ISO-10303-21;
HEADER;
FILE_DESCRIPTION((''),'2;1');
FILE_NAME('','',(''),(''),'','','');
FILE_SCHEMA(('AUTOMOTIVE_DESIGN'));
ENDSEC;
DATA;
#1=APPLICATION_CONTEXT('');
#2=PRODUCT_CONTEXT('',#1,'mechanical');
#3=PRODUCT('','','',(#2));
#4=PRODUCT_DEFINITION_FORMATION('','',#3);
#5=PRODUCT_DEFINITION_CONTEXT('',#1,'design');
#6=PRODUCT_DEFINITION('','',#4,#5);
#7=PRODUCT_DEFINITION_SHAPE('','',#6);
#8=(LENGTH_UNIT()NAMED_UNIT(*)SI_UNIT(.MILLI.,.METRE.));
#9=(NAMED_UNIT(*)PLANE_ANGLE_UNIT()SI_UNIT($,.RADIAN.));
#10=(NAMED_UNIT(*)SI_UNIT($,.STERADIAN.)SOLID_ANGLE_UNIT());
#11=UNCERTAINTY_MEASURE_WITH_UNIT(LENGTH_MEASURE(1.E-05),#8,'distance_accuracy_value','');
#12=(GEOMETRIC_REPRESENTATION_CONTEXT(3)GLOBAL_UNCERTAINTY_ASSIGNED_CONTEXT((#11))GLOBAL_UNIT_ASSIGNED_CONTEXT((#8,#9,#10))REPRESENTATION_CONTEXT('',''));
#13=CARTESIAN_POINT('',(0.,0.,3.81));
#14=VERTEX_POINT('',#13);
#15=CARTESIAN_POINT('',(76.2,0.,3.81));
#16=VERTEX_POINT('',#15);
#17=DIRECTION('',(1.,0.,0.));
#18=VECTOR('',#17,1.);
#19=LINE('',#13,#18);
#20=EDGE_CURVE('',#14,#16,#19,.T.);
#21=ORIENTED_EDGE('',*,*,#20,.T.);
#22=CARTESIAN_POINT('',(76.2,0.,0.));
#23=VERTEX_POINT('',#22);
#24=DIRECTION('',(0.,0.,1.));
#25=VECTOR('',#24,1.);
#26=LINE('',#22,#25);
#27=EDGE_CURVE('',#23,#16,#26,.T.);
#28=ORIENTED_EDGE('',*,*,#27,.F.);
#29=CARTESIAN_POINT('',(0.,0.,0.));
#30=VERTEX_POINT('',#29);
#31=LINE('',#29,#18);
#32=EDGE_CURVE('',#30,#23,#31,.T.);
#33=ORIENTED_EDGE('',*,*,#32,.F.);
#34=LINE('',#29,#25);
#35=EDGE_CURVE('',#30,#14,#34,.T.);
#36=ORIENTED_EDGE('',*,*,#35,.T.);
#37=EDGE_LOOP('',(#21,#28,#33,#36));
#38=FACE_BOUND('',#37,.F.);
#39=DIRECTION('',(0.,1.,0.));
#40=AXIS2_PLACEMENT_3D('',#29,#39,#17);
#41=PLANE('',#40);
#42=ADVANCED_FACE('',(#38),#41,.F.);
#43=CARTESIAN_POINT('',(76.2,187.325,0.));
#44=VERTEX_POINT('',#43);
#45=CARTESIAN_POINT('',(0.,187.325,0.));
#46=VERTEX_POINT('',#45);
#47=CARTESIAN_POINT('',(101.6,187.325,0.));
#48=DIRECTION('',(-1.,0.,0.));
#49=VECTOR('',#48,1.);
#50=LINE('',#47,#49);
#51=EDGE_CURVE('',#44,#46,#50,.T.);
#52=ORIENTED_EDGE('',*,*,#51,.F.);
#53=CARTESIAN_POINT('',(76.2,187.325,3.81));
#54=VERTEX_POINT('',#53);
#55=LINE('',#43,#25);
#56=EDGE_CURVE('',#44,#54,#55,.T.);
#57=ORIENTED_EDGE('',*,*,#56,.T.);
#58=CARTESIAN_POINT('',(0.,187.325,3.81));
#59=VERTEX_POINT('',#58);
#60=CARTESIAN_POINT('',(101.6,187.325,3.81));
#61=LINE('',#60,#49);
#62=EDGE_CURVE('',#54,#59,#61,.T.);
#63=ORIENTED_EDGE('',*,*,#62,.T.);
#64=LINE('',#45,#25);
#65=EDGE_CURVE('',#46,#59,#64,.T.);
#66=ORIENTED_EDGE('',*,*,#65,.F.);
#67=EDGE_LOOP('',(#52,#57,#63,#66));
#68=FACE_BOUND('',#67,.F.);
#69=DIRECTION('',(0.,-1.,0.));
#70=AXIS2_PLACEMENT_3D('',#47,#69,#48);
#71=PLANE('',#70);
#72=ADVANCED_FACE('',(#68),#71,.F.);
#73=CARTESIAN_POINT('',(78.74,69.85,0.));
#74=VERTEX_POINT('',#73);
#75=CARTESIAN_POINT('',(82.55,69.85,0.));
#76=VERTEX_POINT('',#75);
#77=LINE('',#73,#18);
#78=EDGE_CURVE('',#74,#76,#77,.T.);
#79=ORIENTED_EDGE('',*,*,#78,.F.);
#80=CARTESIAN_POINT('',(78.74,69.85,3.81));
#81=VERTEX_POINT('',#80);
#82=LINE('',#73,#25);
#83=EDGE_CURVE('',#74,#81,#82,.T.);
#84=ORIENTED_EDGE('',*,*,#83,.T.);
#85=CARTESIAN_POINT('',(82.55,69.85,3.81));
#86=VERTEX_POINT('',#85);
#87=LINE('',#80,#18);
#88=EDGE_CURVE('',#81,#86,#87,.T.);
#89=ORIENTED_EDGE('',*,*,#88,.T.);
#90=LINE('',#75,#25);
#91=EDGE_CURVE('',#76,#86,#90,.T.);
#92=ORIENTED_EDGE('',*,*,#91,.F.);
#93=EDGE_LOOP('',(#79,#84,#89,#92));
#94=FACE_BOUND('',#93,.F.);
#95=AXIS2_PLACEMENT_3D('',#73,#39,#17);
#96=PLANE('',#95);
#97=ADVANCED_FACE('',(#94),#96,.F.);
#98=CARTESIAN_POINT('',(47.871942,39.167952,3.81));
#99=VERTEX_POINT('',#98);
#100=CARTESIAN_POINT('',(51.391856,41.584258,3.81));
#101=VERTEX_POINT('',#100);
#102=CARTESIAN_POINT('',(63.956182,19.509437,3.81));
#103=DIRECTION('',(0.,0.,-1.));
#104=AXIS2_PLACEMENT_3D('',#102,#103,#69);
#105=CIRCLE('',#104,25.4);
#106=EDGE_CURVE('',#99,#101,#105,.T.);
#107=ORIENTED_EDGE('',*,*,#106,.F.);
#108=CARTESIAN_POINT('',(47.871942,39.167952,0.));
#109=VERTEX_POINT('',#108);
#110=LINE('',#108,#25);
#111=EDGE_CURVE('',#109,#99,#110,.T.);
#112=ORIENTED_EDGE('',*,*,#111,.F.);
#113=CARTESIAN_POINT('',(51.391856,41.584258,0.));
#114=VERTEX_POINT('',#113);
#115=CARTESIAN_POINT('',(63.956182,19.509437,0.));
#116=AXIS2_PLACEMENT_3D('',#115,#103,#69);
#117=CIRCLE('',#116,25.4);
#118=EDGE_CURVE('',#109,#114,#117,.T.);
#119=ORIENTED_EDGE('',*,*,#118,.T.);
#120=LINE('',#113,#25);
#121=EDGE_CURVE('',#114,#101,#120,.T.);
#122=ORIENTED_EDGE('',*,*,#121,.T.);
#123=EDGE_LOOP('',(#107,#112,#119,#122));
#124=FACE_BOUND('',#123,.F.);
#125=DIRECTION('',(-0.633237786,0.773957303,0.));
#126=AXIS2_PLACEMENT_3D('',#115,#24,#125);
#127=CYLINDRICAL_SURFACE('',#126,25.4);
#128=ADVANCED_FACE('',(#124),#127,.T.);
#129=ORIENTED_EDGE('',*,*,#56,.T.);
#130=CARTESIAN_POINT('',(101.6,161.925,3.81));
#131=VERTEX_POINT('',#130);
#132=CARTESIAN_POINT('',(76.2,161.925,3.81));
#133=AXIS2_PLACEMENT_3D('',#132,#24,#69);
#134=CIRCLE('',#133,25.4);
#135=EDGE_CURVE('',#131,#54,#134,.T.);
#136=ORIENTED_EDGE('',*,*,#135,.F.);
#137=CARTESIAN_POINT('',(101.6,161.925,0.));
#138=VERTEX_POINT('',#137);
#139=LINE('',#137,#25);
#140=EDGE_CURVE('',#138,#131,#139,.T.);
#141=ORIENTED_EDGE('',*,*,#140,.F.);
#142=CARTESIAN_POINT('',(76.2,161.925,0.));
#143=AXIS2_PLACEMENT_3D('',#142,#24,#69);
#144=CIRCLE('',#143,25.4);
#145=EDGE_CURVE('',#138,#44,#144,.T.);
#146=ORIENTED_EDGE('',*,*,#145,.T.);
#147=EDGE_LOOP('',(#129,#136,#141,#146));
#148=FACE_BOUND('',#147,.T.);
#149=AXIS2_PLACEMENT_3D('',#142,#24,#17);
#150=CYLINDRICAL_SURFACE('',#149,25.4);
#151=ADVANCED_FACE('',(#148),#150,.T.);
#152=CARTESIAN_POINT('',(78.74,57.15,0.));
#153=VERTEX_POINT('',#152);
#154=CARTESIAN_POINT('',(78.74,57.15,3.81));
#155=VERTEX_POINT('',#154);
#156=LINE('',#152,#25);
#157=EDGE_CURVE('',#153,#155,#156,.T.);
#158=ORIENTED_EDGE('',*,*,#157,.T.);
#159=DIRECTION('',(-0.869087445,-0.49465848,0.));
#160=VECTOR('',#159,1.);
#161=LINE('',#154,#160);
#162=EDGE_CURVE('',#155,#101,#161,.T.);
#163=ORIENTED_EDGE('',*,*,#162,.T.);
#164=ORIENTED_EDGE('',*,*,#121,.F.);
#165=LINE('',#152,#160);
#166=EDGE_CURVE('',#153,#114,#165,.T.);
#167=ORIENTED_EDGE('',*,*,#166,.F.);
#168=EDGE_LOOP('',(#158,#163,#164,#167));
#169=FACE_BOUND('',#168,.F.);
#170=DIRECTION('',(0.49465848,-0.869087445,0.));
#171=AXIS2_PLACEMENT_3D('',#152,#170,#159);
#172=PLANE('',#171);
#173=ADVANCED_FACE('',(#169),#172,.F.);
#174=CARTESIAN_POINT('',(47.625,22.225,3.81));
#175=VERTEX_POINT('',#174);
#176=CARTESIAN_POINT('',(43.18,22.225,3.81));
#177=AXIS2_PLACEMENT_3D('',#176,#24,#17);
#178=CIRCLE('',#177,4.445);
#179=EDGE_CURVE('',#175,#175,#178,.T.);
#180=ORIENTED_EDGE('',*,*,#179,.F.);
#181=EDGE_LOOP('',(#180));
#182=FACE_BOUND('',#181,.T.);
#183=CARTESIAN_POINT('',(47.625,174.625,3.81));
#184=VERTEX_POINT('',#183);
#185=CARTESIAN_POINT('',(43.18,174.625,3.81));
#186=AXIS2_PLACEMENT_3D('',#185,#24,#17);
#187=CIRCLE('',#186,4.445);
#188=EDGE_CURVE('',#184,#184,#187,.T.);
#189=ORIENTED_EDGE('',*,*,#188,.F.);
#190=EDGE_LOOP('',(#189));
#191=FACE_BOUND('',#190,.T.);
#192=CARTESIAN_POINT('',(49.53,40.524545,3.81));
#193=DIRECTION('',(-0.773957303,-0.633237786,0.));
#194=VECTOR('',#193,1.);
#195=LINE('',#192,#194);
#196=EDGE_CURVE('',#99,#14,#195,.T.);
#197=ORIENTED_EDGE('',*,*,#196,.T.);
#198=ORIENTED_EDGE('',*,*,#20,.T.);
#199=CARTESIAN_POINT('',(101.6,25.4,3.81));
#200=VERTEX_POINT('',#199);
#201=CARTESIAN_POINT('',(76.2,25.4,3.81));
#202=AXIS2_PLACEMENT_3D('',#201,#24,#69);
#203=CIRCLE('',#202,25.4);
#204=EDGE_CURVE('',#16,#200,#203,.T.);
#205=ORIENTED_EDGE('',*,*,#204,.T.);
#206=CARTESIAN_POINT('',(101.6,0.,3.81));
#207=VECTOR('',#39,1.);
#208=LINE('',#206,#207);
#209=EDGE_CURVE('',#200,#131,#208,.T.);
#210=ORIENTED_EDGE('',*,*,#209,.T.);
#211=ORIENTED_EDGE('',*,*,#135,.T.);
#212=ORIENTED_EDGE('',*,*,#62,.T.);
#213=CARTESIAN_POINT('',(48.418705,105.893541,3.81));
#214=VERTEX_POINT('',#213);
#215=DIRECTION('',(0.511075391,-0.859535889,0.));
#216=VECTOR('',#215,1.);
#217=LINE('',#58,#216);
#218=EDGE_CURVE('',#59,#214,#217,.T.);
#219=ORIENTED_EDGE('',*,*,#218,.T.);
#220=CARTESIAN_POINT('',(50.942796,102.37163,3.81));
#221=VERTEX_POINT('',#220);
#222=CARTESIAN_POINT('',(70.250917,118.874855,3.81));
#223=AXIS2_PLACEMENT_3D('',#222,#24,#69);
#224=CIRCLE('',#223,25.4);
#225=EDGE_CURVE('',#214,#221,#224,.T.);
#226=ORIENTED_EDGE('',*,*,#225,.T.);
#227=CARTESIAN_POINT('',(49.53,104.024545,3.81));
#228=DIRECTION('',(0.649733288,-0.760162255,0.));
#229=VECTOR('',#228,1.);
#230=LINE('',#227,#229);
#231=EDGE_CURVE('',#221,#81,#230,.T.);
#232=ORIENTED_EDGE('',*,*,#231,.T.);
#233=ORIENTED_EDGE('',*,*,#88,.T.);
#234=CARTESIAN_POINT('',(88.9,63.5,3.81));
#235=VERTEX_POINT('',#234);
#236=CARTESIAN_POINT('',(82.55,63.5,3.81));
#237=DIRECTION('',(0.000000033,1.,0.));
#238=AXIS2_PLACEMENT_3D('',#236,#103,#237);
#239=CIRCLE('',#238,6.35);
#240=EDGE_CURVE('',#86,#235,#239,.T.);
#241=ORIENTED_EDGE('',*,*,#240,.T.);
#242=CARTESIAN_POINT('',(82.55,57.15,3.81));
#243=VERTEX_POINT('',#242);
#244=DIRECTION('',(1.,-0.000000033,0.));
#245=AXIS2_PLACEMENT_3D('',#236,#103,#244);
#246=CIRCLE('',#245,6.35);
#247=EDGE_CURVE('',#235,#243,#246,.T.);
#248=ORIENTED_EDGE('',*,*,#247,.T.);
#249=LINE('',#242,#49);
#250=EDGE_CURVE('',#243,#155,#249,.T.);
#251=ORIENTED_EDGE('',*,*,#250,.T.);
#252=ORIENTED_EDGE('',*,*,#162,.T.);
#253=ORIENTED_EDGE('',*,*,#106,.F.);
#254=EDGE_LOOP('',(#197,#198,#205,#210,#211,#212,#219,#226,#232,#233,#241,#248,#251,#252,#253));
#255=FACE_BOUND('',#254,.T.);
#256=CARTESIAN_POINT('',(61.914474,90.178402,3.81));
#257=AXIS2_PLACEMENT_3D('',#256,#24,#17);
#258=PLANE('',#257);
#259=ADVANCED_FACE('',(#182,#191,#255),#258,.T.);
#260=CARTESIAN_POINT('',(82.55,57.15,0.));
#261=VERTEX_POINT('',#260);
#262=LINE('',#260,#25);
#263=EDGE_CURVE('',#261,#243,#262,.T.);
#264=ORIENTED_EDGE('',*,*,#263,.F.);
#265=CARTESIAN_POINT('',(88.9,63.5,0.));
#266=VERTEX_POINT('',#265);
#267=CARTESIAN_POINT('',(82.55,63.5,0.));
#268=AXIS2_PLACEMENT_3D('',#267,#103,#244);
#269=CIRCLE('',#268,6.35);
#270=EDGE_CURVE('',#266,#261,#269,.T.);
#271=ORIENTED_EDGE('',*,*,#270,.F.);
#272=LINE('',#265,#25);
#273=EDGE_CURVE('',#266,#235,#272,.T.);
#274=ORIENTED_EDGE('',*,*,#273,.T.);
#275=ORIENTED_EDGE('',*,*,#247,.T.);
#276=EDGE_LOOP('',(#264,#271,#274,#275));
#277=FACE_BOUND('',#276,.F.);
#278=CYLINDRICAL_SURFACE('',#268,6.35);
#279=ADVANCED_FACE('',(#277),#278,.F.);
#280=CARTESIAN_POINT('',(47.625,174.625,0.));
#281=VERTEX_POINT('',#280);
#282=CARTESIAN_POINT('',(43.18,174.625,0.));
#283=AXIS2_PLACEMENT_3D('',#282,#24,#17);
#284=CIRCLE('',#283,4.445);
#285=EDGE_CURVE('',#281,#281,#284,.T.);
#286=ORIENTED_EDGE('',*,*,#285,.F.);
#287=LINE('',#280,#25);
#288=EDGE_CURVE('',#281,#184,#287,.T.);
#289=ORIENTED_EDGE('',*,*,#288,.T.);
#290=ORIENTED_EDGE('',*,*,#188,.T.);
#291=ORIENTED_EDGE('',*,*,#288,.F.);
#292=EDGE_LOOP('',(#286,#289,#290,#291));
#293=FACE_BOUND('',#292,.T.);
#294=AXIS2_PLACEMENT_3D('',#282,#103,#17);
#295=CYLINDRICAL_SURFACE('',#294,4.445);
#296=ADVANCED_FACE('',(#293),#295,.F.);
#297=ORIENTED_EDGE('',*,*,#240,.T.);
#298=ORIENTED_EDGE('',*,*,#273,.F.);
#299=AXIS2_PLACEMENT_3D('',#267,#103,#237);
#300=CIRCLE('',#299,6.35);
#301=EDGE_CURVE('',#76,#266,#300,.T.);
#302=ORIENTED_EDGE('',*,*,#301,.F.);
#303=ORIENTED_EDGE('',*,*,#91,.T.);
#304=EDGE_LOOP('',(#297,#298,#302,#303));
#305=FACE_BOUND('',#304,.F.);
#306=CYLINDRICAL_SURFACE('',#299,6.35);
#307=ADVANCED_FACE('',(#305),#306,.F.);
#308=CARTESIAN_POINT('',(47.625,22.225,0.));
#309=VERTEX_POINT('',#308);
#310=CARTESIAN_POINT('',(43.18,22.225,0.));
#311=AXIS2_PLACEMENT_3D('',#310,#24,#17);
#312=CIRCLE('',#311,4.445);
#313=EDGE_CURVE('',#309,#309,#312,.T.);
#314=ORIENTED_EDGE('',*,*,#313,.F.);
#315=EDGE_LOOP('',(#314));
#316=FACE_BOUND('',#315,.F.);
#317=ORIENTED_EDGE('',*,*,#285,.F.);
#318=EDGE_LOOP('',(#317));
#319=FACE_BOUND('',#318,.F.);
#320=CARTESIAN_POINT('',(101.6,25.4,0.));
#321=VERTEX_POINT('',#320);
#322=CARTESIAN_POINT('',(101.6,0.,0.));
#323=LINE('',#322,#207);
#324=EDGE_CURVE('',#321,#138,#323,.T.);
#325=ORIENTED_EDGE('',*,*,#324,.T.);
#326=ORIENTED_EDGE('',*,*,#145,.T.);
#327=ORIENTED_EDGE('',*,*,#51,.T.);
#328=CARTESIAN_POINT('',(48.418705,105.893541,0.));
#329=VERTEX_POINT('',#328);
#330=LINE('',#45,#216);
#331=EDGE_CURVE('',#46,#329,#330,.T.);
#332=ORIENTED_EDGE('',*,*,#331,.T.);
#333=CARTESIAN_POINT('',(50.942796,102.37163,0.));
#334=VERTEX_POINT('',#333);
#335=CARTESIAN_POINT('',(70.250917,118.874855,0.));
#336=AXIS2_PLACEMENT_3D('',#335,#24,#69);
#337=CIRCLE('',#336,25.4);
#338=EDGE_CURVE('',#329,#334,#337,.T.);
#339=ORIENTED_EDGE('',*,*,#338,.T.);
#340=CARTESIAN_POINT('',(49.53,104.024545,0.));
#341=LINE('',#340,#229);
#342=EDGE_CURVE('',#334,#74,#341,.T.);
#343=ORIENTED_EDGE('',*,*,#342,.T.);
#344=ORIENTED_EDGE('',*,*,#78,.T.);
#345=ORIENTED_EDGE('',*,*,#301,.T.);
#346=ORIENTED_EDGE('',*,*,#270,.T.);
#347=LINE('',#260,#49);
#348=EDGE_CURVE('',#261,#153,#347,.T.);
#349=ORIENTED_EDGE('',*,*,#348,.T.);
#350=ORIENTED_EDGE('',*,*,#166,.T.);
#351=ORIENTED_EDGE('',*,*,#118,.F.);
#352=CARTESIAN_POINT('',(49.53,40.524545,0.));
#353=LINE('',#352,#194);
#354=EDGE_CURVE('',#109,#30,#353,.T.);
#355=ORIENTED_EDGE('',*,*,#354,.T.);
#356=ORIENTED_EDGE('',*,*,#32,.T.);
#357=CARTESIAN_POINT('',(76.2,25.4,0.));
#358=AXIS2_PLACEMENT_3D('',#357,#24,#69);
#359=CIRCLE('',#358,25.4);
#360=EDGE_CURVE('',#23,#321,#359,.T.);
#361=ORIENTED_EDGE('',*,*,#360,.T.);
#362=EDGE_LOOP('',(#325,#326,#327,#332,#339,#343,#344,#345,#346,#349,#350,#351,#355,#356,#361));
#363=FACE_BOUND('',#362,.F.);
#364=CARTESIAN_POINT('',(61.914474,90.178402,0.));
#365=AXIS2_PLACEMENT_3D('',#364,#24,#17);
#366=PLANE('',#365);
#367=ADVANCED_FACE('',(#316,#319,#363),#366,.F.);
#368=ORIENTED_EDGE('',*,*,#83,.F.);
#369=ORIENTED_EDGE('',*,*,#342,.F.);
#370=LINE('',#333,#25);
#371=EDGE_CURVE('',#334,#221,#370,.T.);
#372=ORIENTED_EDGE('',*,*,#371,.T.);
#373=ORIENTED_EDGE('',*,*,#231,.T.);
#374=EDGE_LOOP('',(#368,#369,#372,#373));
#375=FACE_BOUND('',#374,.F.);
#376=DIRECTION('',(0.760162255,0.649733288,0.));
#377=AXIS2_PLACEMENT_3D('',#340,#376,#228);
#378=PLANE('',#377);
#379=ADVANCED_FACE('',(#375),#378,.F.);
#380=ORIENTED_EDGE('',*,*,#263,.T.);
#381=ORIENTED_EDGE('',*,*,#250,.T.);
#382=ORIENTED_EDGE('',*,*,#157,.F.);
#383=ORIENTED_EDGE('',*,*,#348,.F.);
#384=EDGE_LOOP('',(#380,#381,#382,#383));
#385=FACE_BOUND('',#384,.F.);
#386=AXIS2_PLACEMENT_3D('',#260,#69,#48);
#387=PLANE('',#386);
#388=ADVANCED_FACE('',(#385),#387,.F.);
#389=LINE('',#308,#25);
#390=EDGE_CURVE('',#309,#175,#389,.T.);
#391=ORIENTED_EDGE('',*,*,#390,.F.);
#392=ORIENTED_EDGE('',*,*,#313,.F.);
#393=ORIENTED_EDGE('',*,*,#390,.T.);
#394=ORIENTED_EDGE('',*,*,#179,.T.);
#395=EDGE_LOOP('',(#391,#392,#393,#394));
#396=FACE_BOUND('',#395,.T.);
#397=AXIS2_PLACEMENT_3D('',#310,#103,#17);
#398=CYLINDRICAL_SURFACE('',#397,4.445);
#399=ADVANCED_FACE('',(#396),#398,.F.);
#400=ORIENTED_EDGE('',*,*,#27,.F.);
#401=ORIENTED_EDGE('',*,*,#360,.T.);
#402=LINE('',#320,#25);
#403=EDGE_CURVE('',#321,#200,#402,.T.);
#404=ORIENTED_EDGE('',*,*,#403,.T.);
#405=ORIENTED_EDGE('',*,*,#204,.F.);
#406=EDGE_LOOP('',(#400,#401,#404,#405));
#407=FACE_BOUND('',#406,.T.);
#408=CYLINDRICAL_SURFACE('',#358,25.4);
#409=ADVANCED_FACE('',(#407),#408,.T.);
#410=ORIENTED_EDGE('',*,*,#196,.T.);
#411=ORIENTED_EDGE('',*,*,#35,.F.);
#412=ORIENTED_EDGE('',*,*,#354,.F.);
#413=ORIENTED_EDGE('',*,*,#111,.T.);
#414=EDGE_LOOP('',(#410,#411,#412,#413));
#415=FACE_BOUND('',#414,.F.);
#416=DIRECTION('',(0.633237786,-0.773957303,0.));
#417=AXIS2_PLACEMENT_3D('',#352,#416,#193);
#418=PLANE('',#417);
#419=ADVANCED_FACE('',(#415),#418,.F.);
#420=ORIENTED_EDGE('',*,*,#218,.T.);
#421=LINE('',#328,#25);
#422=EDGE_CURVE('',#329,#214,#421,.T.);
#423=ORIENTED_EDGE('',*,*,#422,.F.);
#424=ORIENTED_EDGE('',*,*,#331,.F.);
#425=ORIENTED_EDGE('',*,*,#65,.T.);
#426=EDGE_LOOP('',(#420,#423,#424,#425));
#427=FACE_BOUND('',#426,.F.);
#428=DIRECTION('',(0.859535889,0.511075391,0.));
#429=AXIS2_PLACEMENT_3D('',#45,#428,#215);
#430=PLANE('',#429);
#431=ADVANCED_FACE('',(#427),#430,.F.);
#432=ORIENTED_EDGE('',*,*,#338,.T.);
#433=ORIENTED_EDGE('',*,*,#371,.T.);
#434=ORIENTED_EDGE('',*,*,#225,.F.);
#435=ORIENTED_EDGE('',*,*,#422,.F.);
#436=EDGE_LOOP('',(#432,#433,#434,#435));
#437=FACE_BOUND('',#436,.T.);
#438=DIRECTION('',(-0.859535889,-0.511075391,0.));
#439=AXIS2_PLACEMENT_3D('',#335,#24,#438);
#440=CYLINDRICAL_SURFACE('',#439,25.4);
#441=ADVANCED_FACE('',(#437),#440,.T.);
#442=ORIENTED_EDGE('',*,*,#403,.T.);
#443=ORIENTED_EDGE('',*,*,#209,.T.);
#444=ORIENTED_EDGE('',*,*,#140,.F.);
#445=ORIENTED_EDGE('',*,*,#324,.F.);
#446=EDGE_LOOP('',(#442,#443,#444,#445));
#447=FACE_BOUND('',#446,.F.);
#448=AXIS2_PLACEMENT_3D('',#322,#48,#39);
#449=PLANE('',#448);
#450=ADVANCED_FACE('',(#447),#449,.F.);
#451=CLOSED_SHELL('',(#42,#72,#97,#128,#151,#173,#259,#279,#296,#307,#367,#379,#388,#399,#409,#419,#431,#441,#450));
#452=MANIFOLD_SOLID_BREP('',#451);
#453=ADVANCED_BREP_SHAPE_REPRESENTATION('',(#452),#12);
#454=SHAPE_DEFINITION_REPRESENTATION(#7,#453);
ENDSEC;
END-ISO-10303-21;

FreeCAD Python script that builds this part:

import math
import FreeCAD as App
import Part
import Sketcher
from FreeCAD import Vector
Q = App.Units.Quantity


def edges_at(feature, points):
    """Names of the edges that pass closest to the given points."""
    edges = feature.Shape.Edges
    near = lambda p: min(range(len(edges)), key=lambda i: edges[i].distToShape(Part.Vertex(*p))[0])
    return sorted({f"Edge{near(p) + 1}" for p in points})

doc = App.newDocument("Part")
params = doc.addObject("Spreadsheet::Sheet", "Params")
for row, (alias, value) in enumerate([
    ("sketch1_diameter", "0.35 in"),
    ("sketch1_width", "4 in"),
    ("sketch1_radius", "0.25 in"),
    ("sketch1_width2", "0.15 in"),
    ("sketch1_height", "7.375 in"),
    ("pad1_length", "0.15 in"),
    ("fillet_radius", "1 in"),
], start=1):
    params.set(f"A{row}", alias)
    params.set(f"B{row}", "=" + value)
    params.setAlias(f"B{row}", alias)

body = doc.addObject("PartDesign::Body", "Body")

# Sketch on XY plane
sketch1 = doc.addObject("Sketcher::SketchObject", "Sketch")
body.addObject(sketch1)
sketch1.AttachmentSupport = (doc.XY_Plane, [""])
sketch1.MapMode = "FlatFace"
sketch1.addGeometry([
    Part.LineSegment(Vector(49.5, 40.5, 0), Vector(0, 0, 0)),  # 0
    Part.LineSegment(Vector(0, 0, 0), Vector(101.6, 0, 0)),  # 1
    Part.LineSegment(Vector(101.6, 0, 0), Vector(101.6, 187.3, 0)),  # 2
    Part.LineSegment(Vector(101.6, 187.3, 0), Vector(0, 187.3, 0)),  # 3
    Part.LineSegment(Vector(0, 187.3, 0), Vector(49.5, 104, 0)),  # 4
    Part.LineSegment(Vector(49.5, 104, 0), Vector(78.7, 69.8, 0)),  # 5
    Part.LineSegment(Vector(78.7, 69.8, 0), Vector(82.5, 69.8, 0)),  # 6
    Part.ArcOfCircle(Part.Circle(Vector(82.5, 63.5, 0), Vector(0, 0, 1), 6.4), math.radians(0), math.radians(90)),  # 7
    Part.ArcOfCircle(Part.Circle(Vector(82.5, 63.5, 0), Vector(0, 0, 1), 6.4), math.radians(-90), math.radians(0)),  # 8
    Part.LineSegment(Vector(82.5, 57.1, 0), Vector(78.7, 57.1, 0)),  # 9
    Part.LineSegment(Vector(78.7, 57.1, 0), Vector(49.5, 40.5, 0)),  # 10
    Part.Circle(Vector(43.2, 22.2, 0), Vector(0, 0, 1), 4.4),  # 11
    Part.Circle(Vector(43.2, 174.6, 0), Vector(0, 0, 1), 4.4),  # 12
], False)
sketch1.addConstraint([
    Sketcher.Constraint("Coincident", 0, 2, 1, 1),
    Sketcher.Constraint("Coincident", 1, 2, 2, 1),
    Sketcher.Constraint("Coincident", 2, 2, 3, 1),
    Sketcher.Constraint("Coincident", 3, 2, 4, 1),
    Sketcher.Constraint("Coincident", 4, 2, 5, 1),
    Sketcher.Constraint("Coincident", 5, 2, 6, 1),
    Sketcher.Constraint("Tangent", 6, 2, 7, 2),
    Sketcher.Constraint("Tangent", 7, 1, 8, 2),
    Sketcher.Constraint("Tangent", 8, 1, 9, 1),
    Sketcher.Constraint("Coincident", 9, 2, 10, 1),
    Sketcher.Constraint("Coincident", 10, 2, 0, 1),
    Sketcher.Constraint("Horizontal", 1),
    Sketcher.Constraint("Vertical", 2),
    Sketcher.Constraint("Horizontal", 3),
    Sketcher.Constraint("Horizontal", 6),
    Sketcher.Constraint("Horizontal", 9),
    Sketcher.Constraint("Coincident", 0, 2, -1, 1),
    Sketcher.Constraint("Equal", 7, 8),
    Sketcher.Constraint("Equal", 11, 12),
    Sketcher.Constraint("PointOnObject", 3, 2, -2),
    Sketcher.Constraint("Horizontal", 8, 3, 7, 1),
    Sketcher.Constraint("Vertical", 11, 3, 12, 3),
    Sketcher.Constraint("Vertical", 5, 2, 9, 2),
    Sketcher.Constraint("Vertical", 4, 2, 10, 2),
    Sketcher.Constraint("Diameter", 11, Q("0.35 in")),
    Sketcher.Constraint("DistanceX", 1, 1, 1, 2, Q("4 in")),
    Sketcher.Constraint("Radius", 7, Q("0.25 in")),
    Sketcher.Constraint("DistanceY", 11, 3, 12, 3, Q("6 in")),
    Sketcher.Constraint("DistanceX", 6, 1, 6, 2, Q("0.15 in")),
    Sketcher.Constraint("DistanceY", -1, 1, 7, 3, Q("2.5 in")),
    Sketcher.Constraint("DistanceX", -1, 1, 11, 3, Q("1.7 in")),
    Sketcher.Constraint("DistanceX", -1, 1, 5, 2, Q("3.1 in")),
    Sketcher.Constraint("DistanceY", 12, 3, 2, 2, Q("0.5 in")),
    Sketcher.Constraint("DistanceX", 4, 2, 8, 3, Q("1.3 in")),
    Sketcher.Constraint("DistanceY", 2, 1, 2, 2, Q("7.375 in")),
    Sketcher.Constraint("Distance", 0, 63.995778),
    Sketcher.Constraint("Distance", 5, 44.956909),
])
sketch1.setExpression("Constraints[24]", "Params.sketch1_diameter")
sketch1.setExpression("Constraints[25]", "Params.sketch1_width")
sketch1.setExpression("Constraints[26]", "Params.sketch1_radius")
sketch1.setExpression("Constraints[28]", "Params.sketch1_width2")
sketch1.setExpression("Constraints[34]", "Params.sketch1_height")
pad1 = doc.addObject("PartDesign::Pad", "Pad")
body.addObject(pad1)
pad1.Profile = sketch1
pad1.setExpression("Length", "Params.pad1_length")
doc.recompute()

fillet = doc.addObject("PartDesign::Fillet", "Fillet")
body.addObject(fillet)
fillet.Base = (pad1, edges_at(pad1, [
    (101.6, 187.325, 1.905),
    (101.6, 0, 1.905),
    (49.53, 104.025, 1.905),
    (49.53, 40.525, 1.905),
]))
fillet.setExpression("Radius", "Params.fillet_radius")

doc.recompute()
